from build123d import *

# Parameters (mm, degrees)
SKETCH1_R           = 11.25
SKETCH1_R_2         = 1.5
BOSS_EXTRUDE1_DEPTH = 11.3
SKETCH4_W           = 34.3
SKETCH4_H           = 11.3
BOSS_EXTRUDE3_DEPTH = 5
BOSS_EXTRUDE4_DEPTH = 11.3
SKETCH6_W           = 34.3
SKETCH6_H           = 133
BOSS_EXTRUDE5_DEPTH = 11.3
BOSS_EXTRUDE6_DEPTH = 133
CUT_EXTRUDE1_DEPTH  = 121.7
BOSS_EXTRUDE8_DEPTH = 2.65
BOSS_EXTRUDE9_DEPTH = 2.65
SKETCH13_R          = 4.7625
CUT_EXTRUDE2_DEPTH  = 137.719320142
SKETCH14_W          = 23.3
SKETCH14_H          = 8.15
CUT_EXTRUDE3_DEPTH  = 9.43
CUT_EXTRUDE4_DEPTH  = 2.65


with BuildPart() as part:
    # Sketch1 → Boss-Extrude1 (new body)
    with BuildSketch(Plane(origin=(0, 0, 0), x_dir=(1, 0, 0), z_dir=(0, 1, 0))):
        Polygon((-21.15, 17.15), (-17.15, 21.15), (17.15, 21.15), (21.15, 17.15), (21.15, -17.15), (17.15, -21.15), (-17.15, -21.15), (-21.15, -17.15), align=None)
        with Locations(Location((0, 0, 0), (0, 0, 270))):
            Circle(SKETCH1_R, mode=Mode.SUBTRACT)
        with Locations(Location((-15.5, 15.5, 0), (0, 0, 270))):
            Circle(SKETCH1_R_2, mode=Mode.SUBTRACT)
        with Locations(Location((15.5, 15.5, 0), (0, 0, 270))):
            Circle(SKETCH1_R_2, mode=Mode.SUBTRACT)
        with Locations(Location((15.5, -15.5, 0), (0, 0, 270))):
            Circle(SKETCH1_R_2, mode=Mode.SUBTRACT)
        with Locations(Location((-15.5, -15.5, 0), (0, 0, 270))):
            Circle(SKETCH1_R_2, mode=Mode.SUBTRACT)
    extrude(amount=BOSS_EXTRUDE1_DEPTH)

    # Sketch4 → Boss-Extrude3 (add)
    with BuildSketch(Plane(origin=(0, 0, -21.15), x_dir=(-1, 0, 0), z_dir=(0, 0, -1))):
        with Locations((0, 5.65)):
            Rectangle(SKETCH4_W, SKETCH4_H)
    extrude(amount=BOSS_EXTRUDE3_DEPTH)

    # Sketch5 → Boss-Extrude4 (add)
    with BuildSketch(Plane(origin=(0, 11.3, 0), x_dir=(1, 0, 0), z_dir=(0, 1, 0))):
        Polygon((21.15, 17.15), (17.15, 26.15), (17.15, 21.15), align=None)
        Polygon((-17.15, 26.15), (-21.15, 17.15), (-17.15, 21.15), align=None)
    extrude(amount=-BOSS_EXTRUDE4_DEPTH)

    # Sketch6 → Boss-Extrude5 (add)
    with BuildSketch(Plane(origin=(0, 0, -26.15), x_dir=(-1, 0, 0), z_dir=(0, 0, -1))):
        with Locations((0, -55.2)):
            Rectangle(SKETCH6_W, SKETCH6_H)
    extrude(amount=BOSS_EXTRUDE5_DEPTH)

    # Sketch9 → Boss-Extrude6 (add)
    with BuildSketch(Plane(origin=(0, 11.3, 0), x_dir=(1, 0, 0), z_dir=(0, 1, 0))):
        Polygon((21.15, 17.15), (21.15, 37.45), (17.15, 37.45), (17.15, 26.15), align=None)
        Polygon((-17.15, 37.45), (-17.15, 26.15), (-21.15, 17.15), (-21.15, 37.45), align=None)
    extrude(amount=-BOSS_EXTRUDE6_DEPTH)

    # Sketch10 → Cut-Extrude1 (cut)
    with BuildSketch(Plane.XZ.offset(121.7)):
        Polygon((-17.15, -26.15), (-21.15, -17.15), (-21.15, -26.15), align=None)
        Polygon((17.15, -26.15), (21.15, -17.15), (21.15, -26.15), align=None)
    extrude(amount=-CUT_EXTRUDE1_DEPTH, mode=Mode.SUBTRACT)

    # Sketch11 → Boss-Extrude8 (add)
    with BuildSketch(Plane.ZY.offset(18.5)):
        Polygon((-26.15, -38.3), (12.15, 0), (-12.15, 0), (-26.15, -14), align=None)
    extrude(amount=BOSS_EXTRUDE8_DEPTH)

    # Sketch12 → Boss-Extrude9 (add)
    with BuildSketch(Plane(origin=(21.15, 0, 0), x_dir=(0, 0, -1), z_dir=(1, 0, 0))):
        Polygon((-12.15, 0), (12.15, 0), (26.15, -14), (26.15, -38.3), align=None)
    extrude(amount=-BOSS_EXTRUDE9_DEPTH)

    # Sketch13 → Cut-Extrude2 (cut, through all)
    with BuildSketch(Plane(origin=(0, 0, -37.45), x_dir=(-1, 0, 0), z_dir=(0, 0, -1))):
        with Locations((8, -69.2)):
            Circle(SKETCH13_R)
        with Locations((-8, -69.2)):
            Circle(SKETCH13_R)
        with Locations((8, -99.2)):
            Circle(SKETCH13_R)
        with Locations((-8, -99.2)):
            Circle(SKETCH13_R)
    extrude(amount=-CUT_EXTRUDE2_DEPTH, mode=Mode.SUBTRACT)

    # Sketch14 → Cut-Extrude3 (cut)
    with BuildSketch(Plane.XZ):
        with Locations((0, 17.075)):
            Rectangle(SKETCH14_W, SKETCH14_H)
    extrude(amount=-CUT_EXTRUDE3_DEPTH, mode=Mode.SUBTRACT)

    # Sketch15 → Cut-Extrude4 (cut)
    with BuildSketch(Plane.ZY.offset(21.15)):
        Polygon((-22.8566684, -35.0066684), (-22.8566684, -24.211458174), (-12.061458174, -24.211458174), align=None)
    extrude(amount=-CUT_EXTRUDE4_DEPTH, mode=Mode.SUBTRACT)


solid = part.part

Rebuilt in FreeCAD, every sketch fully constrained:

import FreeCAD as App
import Part
import Sketcher

V = App.Vector
Q = App.Units.Quantity

doc = App.newDocument("Part")
body = doc.addObject("PartDesign::Body", "Body")

sketch1 = doc.addObject("Sketcher::SketchObject", "Sketch")
body.addObject(sketch1)
sketch1.AttachmentSupport = (doc.XZ_Plane, [""])
sketch1.MapMode = "FlatFace"
sketch1.addGeometry([
    Part.LineSegment(V(-17.1, -21.1, 0), V(-21.1, -17.1, 0)),
    Part.LineSegment(V(-21.1, -17.1, 0), V(-21.1, 17.1, 0)),
    Part.LineSegment(V(-21.1, 17.1, 0), V(-17.1, 21.1, 0)),
    Part.LineSegment(V(-17.1, 21.1, 0), V(17.1, 21.1, 0)),
    Part.LineSegment(V(17.1, 21.1, 0), V(21.1, 17.1, 0)),
    Part.LineSegment(V(21.1, 17.1, 0), V(21.1, -17.1, 0)),
    Part.LineSegment(V(21.1, -17.1, 0), V(17.1, -21.1, 0)),
    Part.LineSegment(V(17.1, -21.1, 0), V(-17.1, -21.1, 0)),
    Part.Circle(V(15.5, 15.5, 0), V(0, 0, 1), 1.5),
    Part.Circle(V(-15.5, 15.5, 0), V(0, 0, 1), 1.5),
    Part.Circle(V(15.5, -15.5, 0), V(0, 0, 1), 1.5),
    Part.Circle(V(0, 0, 0), V(0, 0, 1), 11.2),
    Part.Circle(V(-15.5, -15.5, 0), V(0, 0, 1), 1.5),
], False)
sketch1.addConstraint([
    Sketcher.Constraint("Coincident", 0, 2, 1, 1),
    Sketcher.Constraint("Coincident", 1, 2, 2, 1),
    Sketcher.Constraint("Coincident", 2, 2, 3, 1),
    Sketcher.Constraint("Coincident", 3, 2, 4, 1),
    Sketcher.Constraint("Coincident", 4, 2, 5, 1),
    Sketcher.Constraint("Coincident", 5, 2, 6, 1),
    Sketcher.Constraint("Coincident", 6, 2, 7, 1),
    Sketcher.Constraint("Coincident", 7, 2, 0, 1),
    Sketcher.Constraint("Vertical", 1),
    Sketcher.Constraint("Horizontal", 3),
    Sketcher.Constraint("Vertical", 5),
    Sketcher.Constraint("Horizontal", 7),
    Sketcher.Constraint("Coincident", 11, 3, -1, 1),
    Sketcher.Constraint("Equal", 8, 9),
    Sketcher.Constraint("Equal", 9, 10),
    Sketcher.Constraint("Equal", 10, 12),
    Sketcher.Constraint("Symmetric", 9, 3, 10, 3, -1, 1),
    Sketcher.Constraint("Symmetric", 8, 3, 12, 3, -1, 1),
    Sketcher.Constraint("Symmetric", 0, 2, 4, 2, -1, 1),
    Sketcher.Constraint("Symmetric", 2, 2, 6, 2, -1, 1),
    Sketcher.Constraint("Symmetric", 8, 3, 9, 3, -2),
    Sketcher.Constraint("Perpendicular", 0, 2),
    Sketcher.Constraint("Perpendicular", 2, 4),
    Sketcher.Constraint("Perpendicular", 4, 6),
    Sketcher.Constraint("Horizontal", 1, 2, 4, 2),
    Sketcher.Constraint("Vertical", 3, 2, 6, 2),
    Sketcher.Constraint("Equal", 7, 1),
    Sketcher.Constraint("Diameter", 8, Q("3 mm")),
    Sketcher.Constraint("Diameter", 11, Q("22.5 mm")),
    Sketcher.Constraint("DistanceX", 3, 1, 3, 2, Q("34.3 mm")),
    Sketcher.Constraint("DistanceX", 9, 3, 8, 3, Q("31 mm")),
    Sketcher.Constraint("DistanceY", 10, 3, 8, 3, Q("31 mm")),
    Sketcher.Constraint("DistanceX", 1, 2, 2, 2, Q("4 mm")),
])
pad1 = doc.addObject("PartDesign::Pad", "Pad")
body.addObject(pad1)
pad1.Profile = sketch1
pad1.Length = 11.3
pad1.Reversed = True

sketch2 = doc.addObject("Sketcher::SketchObject", "Sketch001")
body.addObject(sketch2)
sketch2.AttachmentSupport = (doc.XY_Plane, [""])
sketch2.MapMode = "FlatFace"
sketch2.AttachmentOffset = App.Placement(V(0, 0, -21.15), App.Rotation())
sketch2.addGeometry([
    Part.LineSegment(V(17, 11, 0), V(17, 0, 0)),
    Part.LineSegment(V(17, 0, 0), V(-17, 0, 0)),
    Part.LineSegment(V(-17, 0, 0), V(-17, 11, 0)),
    Part.LineSegment(V(-17, 11, 0), V(17, 11, 0)),
], False)
sketch2.addConstraint([
    Sketcher.Constraint("Coincident", 0, 2, 1, 1),
    Sketcher.Constraint("Coincident", 1, 2, 2, 1),
    Sketcher.Constraint("Coincident", 2, 2, 3, 1),
    Sketcher.Constraint("Coincident", 3, 2, 0, 1),
    Sketcher.Constraint("Vertical", 0),
    Sketcher.Constraint("Horizontal", 1),
    Sketcher.Constraint("Vertical", 2),
    Sketcher.Constraint("Horizontal", 3),
    Sketcher.Constraint("Symmetric", 0, 2, 1, 2, -1, 1),
    Sketcher.Constraint("DistanceX", 1, 2, 1, 1, Q("34.3 mm")),
    Sketcher.Constraint("DistanceY", 0, 2, 0, 1, Q("11.3 mm")),
])
pad2 = doc.addObject("PartDesign::Pad", "Pad001")
body.addObject(pad2)
pad2.Profile = sketch2
pad2.Length = 5
pad2.Reversed = True

sketch3 = doc.addObject("Sketcher::SketchObject", "Sketch002")
body.addObject(sketch3)
sketch3.AttachmentSupport = (doc.XZ_Plane, [""])
sketch3.MapMode = "FlatFace"
sketch3.AttachmentOffset = App.Placement(V(0, 0, -11.3), App.Rotation())
sketch3.addGeometry([
    Part.LineSegment(V(21, -17, 0), V(17, -26, 0)),
    Part.LineSegment(V(17, -26, 0), V(17, -21, 0)),
    Part.LineSegment(V(17, -21, 0), V(21, -17, 0)),
    Part.LineSegment(V(-17, -26, 0), V(-21, -17, 0)),
    Part.LineSegment(V(-21, -17, 0), V(-17, -21, 0)),
    Part.LineSegment(V(-17, -21, 0), V(-17, -26, 0)),
], False)
sketch3.addConstraint([
    Sketcher.Constraint("Coincident", 0, 2, 1, 1),
    Sketcher.Constraint("Coincident", 1, 2, 2, 1),
    Sketcher.Constraint("Coincident", 2, 2, 0, 1),
    Sketcher.Constraint("Coincident", 3, 2, 4, 1),
    Sketcher.Constraint("Coincident", 4, 2, 5, 1),
    Sketcher.Constraint("Coincident", 5, 2, 3, 1),
    Sketcher.Constraint("Vertical", 1),
    Sketcher.Constraint("Vertical", 5),
    Sketcher.Constraint("Symmetric", 2, 2, 3, 2, -2),
    Sketcher.Constraint("Symmetric", 1, 2, 4, 2, -2),
    Sketcher.Constraint("Perpendicular", 2, 4),
    Sketcher.Constraint("Horizontal", 0, 2, 5, 2),
    Sketcher.Constraint("DistanceY", 1, 1, 1, 2, Q("5 mm")),
    Sketcher.Constraint("DistanceX", 1, 2, 2, 2, Q("4 mm")),
    Sketcher.Constraint("DistanceX", 3, 2, 1, 2, Q("38.3 mm")),
    Sketcher.Constraint("DistanceY", 0, 2, -1, 1, Q("26.15 mm")),
])
pad3 = doc.addObject("PartDesign::Pad", "Pad002")
body.addObject(pad3)
pad3.Profile = sketch3
pad3.Length = 11.3

sketch4 = doc.addObject("Sketcher::SketchObject", "Sketch003")
body.addObject(sketch4)
sketch4.AttachmentSupport = (doc.XY_Plane, [""])
sketch4.MapMode = "FlatFace"
sketch4.AttachmentOffset = App.Placement(V(0, 0, -26.15), App.Rotation())
sketch4.addGeometry([
    Part.LineSegment(V(17, 11, 0), V(17, -122, 0)),
    Part.LineSegment(V(17, -122, 0), V(-17, -122, 0)),
    Part.LineSegment(V(-17, -122, 0), V(-17, 11, 0)),
    Part.LineSegment(V(-17, 11, 0), V(17, 11, 0)),
], False)
sketch4.addConstraint([
    Sketcher.Constraint("Coincident", 0, 2, 1, 1),
    Sketcher.Constraint("Coincident", 1, 2, 2, 1),
    Sketcher.Constraint("Coincident", 2, 2, 3, 1),
    Sketcher.Constraint("Coincident", 3, 2, 0, 1),
    Sketcher.Constraint("Vertical", 0),
    Sketcher.Constraint("Horizontal", 1),
    Sketcher.Constraint("Vertical", 2),
    Sketcher.Constraint("Horizontal", 3),
    Sketcher.Constraint("DistanceY", 0, 2, 0, 1, Q("133 mm")),
    Sketcher.Constraint("DistanceX", 1, 2, 1, 1, Q("34.3 mm")),
    Sketcher.Constraint("DistanceY", 0, 2, -1, 1, Q("121.7 mm")),
    Sketcher.Constraint("DistanceX", -1, 1, 0, 2, Q("17.15 mm")),
])
pad4 = doc.addObject("PartDesign::Pad", "Pad003")
body.addObject(pad4)
pad4.Profile = sketch4
pad4.Length = 11.3
pad4.Reversed = True

sketch5 = doc.addObject("Sketcher::SketchObject", "Sketch004")
body.addObject(sketch5)
sketch5.AttachmentSupport = (doc.XZ_Plane, [""])
sketch5.MapMode = "FlatFace"
sketch5.AttachmentOffset = App.Placement(V(0, 0, -11.3), App.Rotation())
sketch5.addGeometry([
    Part.LineSegment(V(21.1, -17.1, 0), V(21.1, -37.5, 0)),
    Part.LineSegment(V(21.1, -37.5, 0), V(17.1, -37.5, 0)),
    Part.LineSegment(V(17.1, -37.5, 0), V(17.1, -26.1, 0)),
    Part.LineSegment(V(17.1, -26.1, 0), V(21.1, -17.1, 0)),
    Part.LineSegment(V(-17.1, -26.1, 0), V(-17.1, -37.5, 0)),
    Part.LineSegment(V(-17.1, -37.5, 0), V(-21.1, -37.5, 0)),
    Part.LineSegment(V(-21.1, -37.5, 0), V(-21.1, -17.1, 0)),
    Part.LineSegment(V(-21.1, -17.1, 0), V(-17.1, -26.1, 0)),
], False)
sketch5.addConstraint([
    Sketcher.Constraint("Coincident", 0, 2, 1, 1),
    Sketcher.Constraint("Coincident", 1, 2, 2, 1),
    Sketcher.Constraint("Coincident", 2, 2, 3, 1),
    Sketcher.Constraint("Coincident", 3, 2, 0, 1),
    Sketcher.Constraint("Coincident", 4, 2, 5, 1),
    Sketcher.Constraint("Coincident", 5, 2, 6, 1),
    Sketcher.Constraint("Coincident", 6, 2, 7, 1),
    Sketcher.Constraint("Coincident", 7, 2, 4, 1),
    Sketcher.Constraint("Vertical", 0),
    Sketcher.Constraint("Horizontal", 1),
    Sketcher.Constraint("Vertical", 2),
    Sketcher.Constraint("Vertical", 4),
    Sketcher.Constraint("Horizontal", 5),
    Sketcher.Constraint("Vertical", 6),
    Sketcher.Constraint("Symmetric", 1, 2, 4, 2, -2),
    Sketcher.Constraint("Symmetric", 3, 2, 6, 2, -2),
    Sketcher.Constraint("Horizontal", 2, 2, 7, 2),
    Sketcher.Constraint("DistanceX", 1, 2, 1, 1, Q("4 mm")),
    Sketcher.Constraint("DistanceY", 0, 2, 0, 1, Q("20.3 mm")),
    Sketcher.Constraint("DistanceY", 2, 1, 2, 2, Q("11.3 mm")),
    Sketcher.Constraint("DistanceX", 4, 2, 1, 2, Q("34.3 mm")),
    Sketcher.Constraint("DistanceY", 0, 2, -1, 1, Q("37.45 mm")),
])
pad5 = doc.addObject("PartDesign::Pad", "Pad004")
body.addObject(pad5)
pad5.Profile = sketch5
pad5.Length = 133

sketch6 = doc.addObject("Sketcher::SketchObject", "Sketch005")
body.addObject(sketch6)
sketch6.AttachmentSupport = (doc.XZ_Plane, [""])
sketch6.MapMode = "FlatFace"
sketch6.AttachmentOffset = App.Placement(V(0, 0, 121.7), App.Rotation())
sketch6.addGeometry([
    Part.LineSegment(V(-17.1, -26.1, 0), V(-21.1, -17.1, 0)),
    Part.LineSegment(V(-21.1, -17.1, 0), V(-21.1, -26.1, 0)),
    Part.LineSegment(V(-21.1, -26.1, 0), V(-17.1, -26.1, 0)),
    Part.LineSegment(V(21.1, -17.1, 0), V(17.1, -26.1, 0)),
    Part.LineSegment(V(17.1, -26.1, 0), V(21.1, -26.1, 0)),
    Part.LineSegment(V(21.1, -26.1, 0), V(21.1, -17.1, 0)),
], False)
sketch6.addConstraint([
    Sketcher.Constraint("Coincident", 0, 2, 1, 1),
    Sketcher.Constraint("Coincident", 1, 2, 2, 1),
    Sketcher.Constraint("Coincident", 2, 2, 0, 1),
    Sketcher.Constraint("Coincident", 3, 2, 4, 1),
    Sketcher.Constraint("Coincident", 4, 2, 5, 1),
    Sketcher.Constraint("Coincident", 5, 2, 3, 1),
    Sketcher.Constraint("Vertical", 1),
    Sketcher.Constraint("Horizontal", 2),
    Sketcher.Constraint("Horizontal", 4),
    Sketcher.Constraint("Vertical", 5),
    Sketcher.Constraint("Symmetric", 2, 2, 3, 2, -2),
    Sketcher.Constraint("Symmetric", 0, 2, 5, 2, -2),
    Sketcher.Constraint("DistanceX", 2, 1, 2, 2, Q("4 mm")),
    Sketcher.Constraint("DistanceY", 1, 2, 1, 1, Q("9 mm")),
    Sketcher.Constraint("DistanceX", 2, 2, 3, 2, Q("34.3 mm")),
    Sketcher.Constraint("DistanceY", 0, 2, -1, 1, Q("17.15 mm")),
])
pocket1 = doc.addObject("PartDesign::Pocket", "Pocket")
body.addObject(pocket1)
pocket1.Profile = sketch6
pocket1.Length = 121.7

sketch7 = doc.addObject("Sketcher::SketchObject", "Sketch006")
body.addObject(sketch7)
sketch7.AttachmentSupport = (doc.YZ_Plane, [""])
sketch7.MapMode = "FlatFace"
sketch7.AttachmentOffset = App.Placement(V(0, 0, -18.5), App.Rotation())
sketch7.addGeometry([
    Part.LineSegment(V(-38, -26, 0), V(0, 12, 0)),
    Part.LineSegment(V(0, 12, 0), V(0, -12, 0)),
    Part.LineSegment(V(0, -12, 0), V(-14, -26, 0)),
    Part.LineSegment(V(-14, -26, 0), V(-38, -26, 0)),
], False)
sketch7.addConstraint([
    Sketcher.Constraint("Coincident", 0, 2, 1, 1),
    Sketcher.Constraint("Coincident", 1, 2, 2, 1),
    Sketcher.Constraint("Coincident", 2, 2, 3, 1),
    Sketcher.Constraint("Coincident", 3, 2, 0, 1),
    Sketcher.Constraint("Vertical", 1),
    Sketcher.Constraint("Horizontal", 3),
    Sketcher.Constraint("Symmetric", 0, 2, 1, 2, -1, 1),
    Sketcher.Constraint("Parallel", 0, 2),
    Sketcher.Constraint("Equal", 3, 1),
    Sketcher.Constraint("DistanceX", 3, 2, 3, 1, Q("24.3 mm")),
    Sketcher.Constraint("DistanceX", 2, 2, -1, 1, Q("14 mm")),
])
pad6 = doc.addObject("PartDesign::Pad", "Pad005")
body.addObject(pad6)
pad6.Profile = sketch7
pad6.Length = 2.65
pad6.Reversed = True

sketch8 = doc.addObject("Sketcher::SketchObject", "Sketch007")
body.addObject(sketch8)
sketch8.AttachmentSupport = (doc.YZ_Plane, [""])
sketch8.MapMode = "FlatFace"
sketch8.AttachmentOffset = App.Placement(V(0, 0, 21.15), App.Rotation())
sketch8.addGeometry([
    Part.LineSegment(V(0, -12, 0), V(0, 12, 0)),
    Part.LineSegment(V(0, 12, 0), V(-38, -26, 0)),
    Part.LineSegment(V(-38, -26, 0), V(-14, -26, 0)),
    Part.LineSegment(V(-14, -26, 0), V(0, -12, 0)),
], False)
sketch8.addConstraint([
    Sketcher.Constraint("Coincident", 0, 2, 1, 1),
    Sketcher.Constraint("Coincident", 1, 2, 2, 1),
    Sketcher.Constraint("Coincident", 2, 2, 3, 1),
    Sketcher.Constraint("Coincident", 3, 2, 0, 1),
    Sketcher.Constraint("Vertical", 0),
    Sketcher.Constraint("Horizontal", 2),
    Sketcher.Constraint("Symmetric", 0, 2, 3, 2, -1, 1),
    Sketcher.Constraint("Parallel", 1, 3),
    Sketcher.Constraint("Equal", 2, 0),
    Sketcher.Constraint("DistanceX", 2, 1, 2, 2, Q("24.3 mm")),
    Sketcher.Constraint("DistanceX", 2, 2, -1, 1, Q("14 mm")),
])
pad7 = doc.addObject("PartDesign::Pad", "Pad006")
body.addObject(pad7)
pad7.Profile = sketch8
pad7.Length = 2.65
pad7.Reversed = True

sketch9 = doc.addObject("Sketcher::SketchObject", "Sketch008")
body.addObject(sketch9)
sketch9.AttachmentSupport = (doc.XY_Plane, [""])
sketch9.MapMode = "FlatFace"
sketch9.AttachmentOffset = App.Placement(V(0, 0, -37.45), App.Rotation())
sketch9.addGeometry([
    Part.Circle(V(-8, -69.2, 0), V(0, 0, 1), 4.8),
    Part.Circle(V(8, -69.2, 0), V(0, 0, 1), 4.8),
    Part.Circle(V(-8, -99.2, 0), V(0, 0, 1), 4.8),
    Part.Circle(V(8, -99.2, 0), V(0, 0, 1), 4.8),
], False)
sketch9.addConstraint([
    Sketcher.Constraint("Equal", 0, 1),
    Sketcher.Constraint("Equal", 1, 2),
    Sketcher.Constraint("Equal", 2, 3),
    Sketcher.Constraint("Symmetric", 0, 3, 1, 3, -2),
    Sketcher.Constraint("Symmetric", 2, 3, 3, 3, -2),
    Sketcher.Constraint("Vertical", 0, 3, 2, 3),
    Sketcher.Constraint("Diameter", 0, Q("9.525 mm")),
    Sketcher.Constraint("DistanceX", 0, 3, -1, 1, Q("8 mm")),
    Sketcher.Constraint("DistanceY", 2, 3, 0, 3, Q("30 mm")),
    Sketcher.Constraint("DistanceY", 0, 3, -1, 1, Q("69.2 mm")),
])
pocket2 = doc.addObject("PartDesign::Pocket", "Pocket001")
body.addObject(pocket2)
pocket2.Profile = sketch9
pocket2.Type = "ThroughAll"
pocket2.Reversed = True

sketch10 = doc.addObject("Sketcher::SketchObject", "Sketch009")
body.addObject(sketch10)
sketch10.AttachmentSupport = (doc.XZ_Plane, [""])
sketch10.MapMode = "FlatFace"
sketch10.addGeometry([
    Part.LineSegment(V(-12, 21, 0), V(-12, 13, 0)),
    Part.LineSegment(V(-12, 13, 0), V(12, 13, 0)),
    Part.LineSegment(V(12, 13, 0), V(12, 21, 0)),
    Part.LineSegment(V(12, 21, 0), V(-12, 21, 0)),
], False)
sketch10.addConstraint([
    Sketcher.Constraint("Coincident", 0, 2, 1, 1),
    Sketcher.Constraint("Coincident", 1, 2, 2, 1),
    Sketcher.Constraint("Coincident", 2, 2, 3, 1),
    Sketcher.Constraint("Coincident", 3, 2, 0, 1),
    Sketcher.Constraint("Vertical", 0),
    Sketcher.Constraint("Horizontal", 1),
    Sketcher.Constraint("Vertical", 2),
    Sketcher.Constraint("Horizontal", 3),
    Sketcher.Constraint("DistanceX", 1, 1, 1, 2, Q("23.3 mm")),
    Sketcher.Constraint("DistanceY", -1, 1, 0, 2, Q("13 mm")),
    Sketcher.Constraint("DistanceY", 0, 2, 0, 1, Q("8.15 mm")),
    Sketcher.Constraint("DistanceX", 0, 2, -1, 1, Q("11.65 mm")),
])
pocket3 = doc.addObject("PartDesign::Pocket", "Pocket002")
body.addObject(pocket3)
pocket3.Profile = sketch10
pocket3.Length = 9.43

sketch11 = doc.addObject("Sketcher::SketchObject", "Sketch010")
body.addObject(sketch11)
sketch11.AttachmentSupport = (doc.YZ_Plane, [""])
sketch11.MapMode = "FlatFace"
sketch11.AttachmentOffset = App.Placement(V(0, 0, -21.15), App.Rotation())
sketch11.addGeometry([
    Part.LineSegment(V(-24, -23, 0), V(-35, -23, 0)),
    Part.LineSegment(V(-35, -23, 0), V(-24, -12, 0)),
    Part.LineSegment(V(-24, -12, 0), V(-24, -23, 0)),
], False)
sketch11.addConstraint([
    Sketcher.Constraint("Coincident", 0, 2, 1, 1),
    Sketcher.Constraint("Coincident", 1, 2, 2, 1),
    Sketcher.Constraint("Coincident", 2, 2, 0, 1),
    Sketcher.Constraint("Horizontal", 0),
    Sketcher.Constraint("Vertical", 2),
    Sketcher.Constraint("Equal", 0, 2),
    Sketcher.Constraint("DistanceX", 0, 2, 0, 1, Q("10.79521 mm")),
    Sketcher.Constraint("DistanceX", 0, 2, -1, 1, Q("35.006668 mm")),
    Sketcher.Constraint("DistanceY", 0, 2, -1, 1, Q("22.856668 mm")),
])
pocket4 = doc.addObject("PartDesign::Pocket", "Pocket003")
body.addObject(pocket4)
pocket4.Profile = sketch11
pocket4.Length = 2.65
pocket4.Reversed = True

doc.recompute()
